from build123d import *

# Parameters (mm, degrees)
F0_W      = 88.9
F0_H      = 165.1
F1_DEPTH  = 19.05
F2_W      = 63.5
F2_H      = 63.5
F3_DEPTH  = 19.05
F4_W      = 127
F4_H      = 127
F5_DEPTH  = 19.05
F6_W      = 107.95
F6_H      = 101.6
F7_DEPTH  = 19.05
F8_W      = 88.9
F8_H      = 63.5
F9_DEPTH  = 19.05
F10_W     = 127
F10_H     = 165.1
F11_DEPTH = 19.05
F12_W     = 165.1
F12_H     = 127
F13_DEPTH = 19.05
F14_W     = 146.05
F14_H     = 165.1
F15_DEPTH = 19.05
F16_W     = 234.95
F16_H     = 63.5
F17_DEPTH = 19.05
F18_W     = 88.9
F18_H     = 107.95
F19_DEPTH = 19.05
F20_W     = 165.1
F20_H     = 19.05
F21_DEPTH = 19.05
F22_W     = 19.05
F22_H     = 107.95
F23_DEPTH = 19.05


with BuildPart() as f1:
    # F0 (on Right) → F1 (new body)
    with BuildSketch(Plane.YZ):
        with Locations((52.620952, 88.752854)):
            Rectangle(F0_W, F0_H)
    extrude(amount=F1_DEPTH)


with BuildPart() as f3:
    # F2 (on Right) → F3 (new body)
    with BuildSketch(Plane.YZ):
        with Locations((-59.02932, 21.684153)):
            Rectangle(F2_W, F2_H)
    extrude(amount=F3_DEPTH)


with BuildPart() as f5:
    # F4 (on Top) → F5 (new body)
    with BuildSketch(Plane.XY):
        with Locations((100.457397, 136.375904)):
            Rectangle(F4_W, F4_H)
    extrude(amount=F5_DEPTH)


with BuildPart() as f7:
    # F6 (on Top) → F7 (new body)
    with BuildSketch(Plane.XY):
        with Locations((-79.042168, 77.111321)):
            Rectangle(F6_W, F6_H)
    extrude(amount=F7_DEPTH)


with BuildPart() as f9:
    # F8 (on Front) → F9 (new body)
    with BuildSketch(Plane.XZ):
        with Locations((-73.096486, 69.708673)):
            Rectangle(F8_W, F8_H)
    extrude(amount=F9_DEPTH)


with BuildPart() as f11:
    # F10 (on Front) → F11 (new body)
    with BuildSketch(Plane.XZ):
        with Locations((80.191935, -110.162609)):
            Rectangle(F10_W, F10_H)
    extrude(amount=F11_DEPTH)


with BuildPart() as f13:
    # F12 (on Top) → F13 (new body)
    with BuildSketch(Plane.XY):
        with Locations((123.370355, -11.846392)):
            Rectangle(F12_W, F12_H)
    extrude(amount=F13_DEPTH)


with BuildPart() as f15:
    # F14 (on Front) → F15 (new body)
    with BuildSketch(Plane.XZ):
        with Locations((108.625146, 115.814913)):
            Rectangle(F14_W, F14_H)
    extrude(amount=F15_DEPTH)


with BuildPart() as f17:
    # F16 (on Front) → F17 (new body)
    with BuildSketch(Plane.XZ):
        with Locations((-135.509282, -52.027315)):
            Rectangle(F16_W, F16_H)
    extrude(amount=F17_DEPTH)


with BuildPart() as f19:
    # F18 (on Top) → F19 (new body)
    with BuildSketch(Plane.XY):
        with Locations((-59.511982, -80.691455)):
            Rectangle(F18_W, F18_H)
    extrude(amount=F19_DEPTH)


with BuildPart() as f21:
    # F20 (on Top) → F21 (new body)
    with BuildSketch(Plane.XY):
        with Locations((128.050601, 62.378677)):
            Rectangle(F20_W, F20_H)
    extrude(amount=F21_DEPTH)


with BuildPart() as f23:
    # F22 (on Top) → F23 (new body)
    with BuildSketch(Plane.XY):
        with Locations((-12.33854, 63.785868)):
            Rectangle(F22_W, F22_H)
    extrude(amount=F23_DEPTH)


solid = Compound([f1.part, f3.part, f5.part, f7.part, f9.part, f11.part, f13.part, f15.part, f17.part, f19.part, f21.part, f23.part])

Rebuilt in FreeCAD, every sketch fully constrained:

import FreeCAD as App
import Part
import Sketcher
Q = App.Units.Quantity

doc = App.newDocument("Part")
body = doc.addObject("PartDesign::Body", "Body")

sketch1 = body.newObject("Sketcher::SketchObject", "Sketch")
sketch1.AttachmentSupport = (doc.getObject("YZ_Plane"), [""])
sketch1.MapMode = "FlatFace"
sketch1.addGeometry(Part.LineSegment(App.Vector(8.170952, 171.302854, 0), App.Vector(8.170952, 6.202854, 0)), False)
sketch1.addGeometry(Part.LineSegment(App.Vector(8.170952, 6.202854, 0), App.Vector(97.070952, 6.202854, 0)), False)
sketch1.addGeometry(Part.LineSegment(App.Vector(97.070952, 6.202854, 0), App.Vector(97.070952, 171.302854, 0)), False)
sketch1.addGeometry(Part.LineSegment(App.Vector(97.070952, 171.302854, 0), App.Vector(8.170952, 171.302854, 0)), False)
sketch1.addConstraint(Sketcher.Constraint("Coincident", 0, 2, 1, 1))
sketch1.addConstraint(Sketcher.Constraint("Coincident", 1, 2, 2, 1))
sketch1.addConstraint(Sketcher.Constraint("Coincident", 2, 2, 3, 1))
sketch1.addConstraint(Sketcher.Constraint("Coincident", 3, 2, 0, 1))
sketch1.addConstraint(Sketcher.Constraint("Vertical", 0))
sketch1.addConstraint(Sketcher.Constraint("Horizontal", 1))
sketch1.addConstraint(Sketcher.Constraint("Vertical", 2))
sketch1.addConstraint(Sketcher.Constraint("Horizontal", 3))
sketch1.addConstraint(Sketcher.Constraint("DistanceX", 1, 1, 1, 2, Q("3.5 in")))
sketch1.addConstraint(Sketcher.Constraint("DistanceY", 0, 2, 0, 1, Q("6.5 in")))
sketch1.addConstraint(Sketcher.Constraint("DistanceX", -1, 1, 0, 2, Q("8.170952 mm")))
sketch1.addConstraint(Sketcher.Constraint("DistanceY", -1, 1, 0, 2, Q("6.202854 mm")))
pad1 = body.newObject("PartDesign::Pad", "Pad")
pad1.Profile = sketch1
pad1.Length = Q("0.75 in")
body2 = doc.addObject("PartDesign::Body", "Body001")

sketch2 = body2.newObject("Sketcher::SketchObject", "Sketch001")
sketch2.AttachmentSupport = (doc.getObject("YZ_Plane001"), [""])
sketch2.MapMode = "FlatFace"
sketch2.addGeometry(Part.LineSegment(App.Vector(-90.77932, 53.434153, 0), App.Vector(-90.77932, -10.065847, 0)), False)
sketch2.addGeometry(Part.LineSegment(App.Vector(-90.77932, -10.065847, 0), App.Vector(-27.27932, -10.065847, 0)), False)
sketch2.addGeometry(Part.LineSegment(App.Vector(-27.27932, -10.065847, 0), App.Vector(-27.27932, 53.434153, 0)), False)
sketch2.addGeometry(Part.LineSegment(App.Vector(-27.27932, 53.434153, 0), App.Vector(-90.77932, 53.434153, 0)), False)
sketch2.addConstraint(Sketcher.Constraint("Coincident", 0, 2, 1, 1))
sketch2.addConstraint(Sketcher.Constraint("Coincident", 1, 2, 2, 1))
sketch2.addConstraint(Sketcher.Constraint("Coincident", 2, 2, 3, 1))
sketch2.addConstraint(Sketcher.Constraint("Coincident", 3, 2, 0, 1))
sketch2.addConstraint(Sketcher.Constraint("Vertical", 0))
sketch2.addConstraint(Sketcher.Constraint("Horizontal", 1))
sketch2.addConstraint(Sketcher.Constraint("Vertical", 2))
sketch2.addConstraint(Sketcher.Constraint("Horizontal", 3))
sketch2.addConstraint(Sketcher.Constraint("Equal", 3, 0))
sketch2.addConstraint(Sketcher.Constraint("DistanceX", 1, 1, 1, 2, Q("2.5 in")))
sketch2.addConstraint(Sketcher.Constraint("DistanceX", 0, 2, -1, 1, Q("90.77932 mm")))
sketch2.addConstraint(Sketcher.Constraint("DistanceY", 0, 2, -1, 1, Q("10.065847 mm")))
pad2 = body2.newObject("PartDesign::Pad", "Pad001")
pad2.Profile = sketch2
pad2.Length = Q("0.75 in")
body3 = doc.addObject("PartDesign::Body", "Body002")

sketch3 = body3.newObject("Sketcher::SketchObject", "Sketch002")
sketch3.AttachmentSupport = (doc.getObject("XY_Plane002"), [""])
sketch3.MapMode = "FlatFace"
sketch3.addGeometry(Part.LineSegment(App.Vector(36.957397, 199.875904, 0), App.Vector(36.957397, 72.875904, 0)), False)
sketch3.addGeometry(Part.LineSegment(App.Vector(36.957397, 72.875904, 0), App.Vector(163.957397, 72.875904, 0)), False)
sketch3.addGeometry(Part.LineSegment(App.Vector(163.957397, 72.875904, 0), App.Vector(163.957397, 199.875904, 0)), False)
sketch3.addGeometry(Part.LineSegment(App.Vector(163.957397, 199.875904, 0), App.Vector(36.957397, 199.875904, 0)), False)
sketch3.addConstraint(Sketcher.Constraint("Coincident", 0, 2, 1, 1))
sketch3.addConstraint(Sketcher.Constraint("Coincident", 1, 2, 2, 1))
sketch3.addConstraint(Sketcher.Constraint("Coincident", 2, 2, 3, 1))
sketch3.addConstraint(Sketcher.Constraint("Coincident", 3, 2, 0, 1))
sketch3.addConstraint(Sketcher.Constraint("Vertical", 0))
sketch3.addConstraint(Sketcher.Constraint("Horizontal", 1))
sketch3.addConstraint(Sketcher.Constraint("Vertical", 2))
sketch3.addConstraint(Sketcher.Constraint("Horizontal", 3))
sketch3.addConstraint(Sketcher.Constraint("Equal", 3, 0))
sketch3.addConstraint(Sketcher.Constraint("DistanceX", 1, 1, 1, 2, Q("5 in")))
sketch3.addConstraint(Sketcher.Constraint("DistanceX", -1, 1, 0, 2, Q("36.957397 mm")))
sketch3.addConstraint(Sketcher.Constraint("DistanceY", -1, 1, 0, 2, Q("72.875904 mm")))
pad3 = body3.newObject("PartDesign::Pad", "Pad002")
pad3.Profile = sketch3
pad3.Length = Q("0.75 in")
body4 = doc.addObject("PartDesign::Body", "Body003")

sketch4 = body4.newObject("Sketcher::SketchObject", "Sketch003")
sketch4.AttachmentSupport = (doc.getObject("XY_Plane003"), [""])
sketch4.MapMode = "FlatFace"
sketch4.addGeometry(Part.LineSegment(App.Vector(-133.017168, 127.911321, 0), App.Vector(-133.017168, 26.311321, 0)), False)
sketch4.addGeometry(Part.LineSegment(App.Vector(-133.017168, 26.311321, 0), App.Vector(-25.067168, 26.311321, 0)), False)
sketch4.addGeometry(Part.LineSegment(App.Vector(-25.067168, 26.311321, 0), App.Vector(-25.067168, 127.911321, 0)), False)
sketch4.addGeometry(Part.LineSegment(App.Vector(-25.067168, 127.911321, 0), App.Vector(-133.017168, 127.911321, 0)), False)
sketch4.addConstraint(Sketcher.Constraint("Coincident", 0, 2, 1, 1))
sketch4.addConstraint(Sketcher.Constraint("Coincident", 1, 2, 2, 1))
sketch4.addConstraint(Sketcher.Constraint("Coincident", 2, 2, 3, 1))
sketch4.addConstraint(Sketcher.Constraint("Coincident", 3, 2, 0, 1))
sketch4.addConstraint(Sketcher.Constraint("Vertical", 0))
sketch4.addConstraint(Sketcher.Constraint("Horizontal", 1))
sketch4.addConstraint(Sketcher.Constraint("Vertical", 2))
sketch4.addConstraint(Sketcher.Constraint("Horizontal", 3))
sketch4.addConstraint(Sketcher.Constraint("DistanceY", 0, 2, 0, 1, Q("4 in")))
sketch4.addConstraint(Sketcher.Constraint("DistanceX", 1, 1, 1, 2, Q("4.25 in")))
sketch4.addConstraint(Sketcher.Constraint("DistanceX", 0, 2, -1, 1, Q("133.017168 mm")))
sketch4.addConstraint(Sketcher.Constraint("DistanceY", -1, 1, 0, 2, Q("26.311321 mm")))
pad4 = body4.newObject("PartDesign::Pad", "Pad003")
pad4.Profile = sketch4
pad4.Length = Q("0.75 in")
body5 = doc.addObject("PartDesign::Body", "Body004")

sketch5 = body5.newObject("Sketcher::SketchObject", "Sketch004")
sketch5.AttachmentSupport = (doc.getObject("XZ_Plane004"), [""])
sketch5.MapMode = "FlatFace"
sketch5.addGeometry(Part.LineSegment(App.Vector(-117.546486, 101.458673, 0), App.Vector(-117.546486, 37.958673, 0)), False)
sketch5.addGeometry(Part.LineSegment(App.Vector(-117.546486, 37.958673, 0), App.Vector(-28.646486, 37.958673, 0)), False)
sketch5.addGeometry(Part.LineSegment(App.Vector(-28.646486, 37.958673, 0), App.Vector(-28.646486, 101.458673, 0)), False)
sketch5.addGeometry(Part.LineSegment(App.Vector(-28.646486, 101.458673, 0), App.Vector(-117.546486, 101.458673, 0)), False)
sketch5.addConstraint(Sketcher.Constraint("Coincident", 0, 2, 1, 1))
sketch5.addConstraint(Sketcher.Constraint("Coincident", 1, 2, 2, 1))
sketch5.addConstraint(Sketcher.Constraint("Coincident", 2, 2, 3, 1))
sketch5.addConstraint(Sketcher.Constraint("Coincident", 3, 2, 0, 1))
sketch5.addConstraint(Sketcher.Constraint("Vertical", 0))
sketch5.addConstraint(Sketcher.Constraint("Horizontal", 1))
sketch5.addConstraint(Sketcher.Constraint("Vertical", 2))
sketch5.addConstraint(Sketcher.Constraint("Horizontal", 3))
sketch5.addConstraint(Sketcher.Constraint("DistanceX", 1, 1, 1, 2, Q("3.5 in")))
sketch5.addConstraint(Sketcher.Constraint("DistanceY", 0, 2, 0, 1, Q("2.5 in")))
sketch5.addConstraint(Sketcher.Constraint("DistanceX", 0, 2, -1, 1, Q("117.546486 mm")))
sketch5.addConstraint(Sketcher.Constraint("DistanceY", -1, 1, 0, 2, Q("37.958673 mm")))
pad5 = body5.newObject("PartDesign::Pad", "Pad004")
pad5.Profile = sketch5
pad5.Length = Q("0.75 in")
body6 = doc.addObject("PartDesign::Body", "Body005")

sketch6 = body6.newObject("Sketcher::SketchObject", "Sketch005")
sketch6.AttachmentSupport = (doc.getObject("XZ_Plane005"), [""])
sketch6.MapMode = "FlatFace"
sketch6.addGeometry(Part.LineSegment(App.Vector(16.691935, -27.612609, 0), App.Vector(16.691935, -192.712609, 0)), False)
sketch6.addGeometry(Part.LineSegment(App.Vector(16.691935, -192.712609, 0), App.Vector(143.691935, -192.712609, 0)), False)
sketch6.addGeometry(Part.LineSegment(App.Vector(143.691935, -192.712609, 0), App.Vector(143.691935, -27.612609, 0)), False)
sketch6.addGeometry(Part.LineSegment(App.Vector(143.691935, -27.612609, 0), App.Vector(16.691935, -27.612609, 0)), False)
sketch6.addConstraint(Sketcher.Constraint("Coincident", 0, 2, 1, 1))
sketch6.addConstraint(Sketcher.Constraint("Coincident", 1, 2, 2, 1))
sketch6.addConstraint(Sketcher.Constraint("Coincident", 2, 2, 3, 1))
sketch6.addConstraint(Sketcher.Constraint("Coincident", 3, 2, 0, 1))
sketch6.addConstraint(Sketcher.Constraint("Vertical", 0))
sketch6.addConstraint(Sketcher.Constraint("Horizontal", 1))
sketch6.addConstraint(Sketcher.Constraint("Vertical", 2))
sketch6.addConstraint(Sketcher.Constraint("Horizontal", 3))
sketch6.addConstraint(Sketcher.Constraint("DistanceX", 1, 1, 1, 2, Q("5 in")))
sketch6.addConstraint(Sketcher.Constraint("DistanceY", 0, 2, 0, 1, Q("6.5 in")))
sketch6.addConstraint(Sketcher.Constraint("DistanceY", 0, 2, -1, 1, Q("192.712609 mm")))
sketch6.addConstraint(Sketcher.Constraint("DistanceX", -1, 1, 0, 2, Q("16.691935 mm")))
pad6 = body6.newObject("PartDesign::Pad", "Pad005")
pad6.Profile = sketch6
pad6.Length = Q("0.75 in")
body7 = doc.addObject("PartDesign::Body", "Body006")

sketch7 = body7.newObject("Sketcher::SketchObject", "Sketch006")
sketch7.AttachmentSupport = (doc.getObject("XY_Plane006"), [""])
sketch7.MapMode = "FlatFace"
sketch7.addGeometry(Part.LineSegment(App.Vector(40.820355, 51.653608, 0), App.Vector(40.820355, -75.346392, 0)), False)
sketch7.addGeometry(Part.LineSegment(App.Vector(40.820355, -75.346392, 0), App.Vector(205.920355, -75.346392, 0)), False)
sketch7.addGeometry(Part.LineSegment(App.Vector(205.920355, -75.346392, 0), App.Vector(205.920355, 51.653608, 0)), False)
sketch7.addGeometry(Part.LineSegment(App.Vector(205.920355, 51.653608, 0), App.Vector(40.820355, 51.653608, 0)), False)
sketch7.addConstraint(Sketcher.Constraint("Coincident", 0, 2, 1, 1))
sketch7.addConstraint(Sketcher.Constraint("Coincident", 1, 2, 2, 1))
sketch7.addConstraint(Sketcher.Constraint("Coincident", 2, 2, 3, 1))
sketch7.addConstraint(Sketcher.Constraint("Coincident", 3, 2, 0, 1))
sketch7.addConstraint(Sketcher.Constraint("Vertical", 0))
sketch7.addConstraint(Sketcher.Constraint("Horizontal", 1))
sketch7.addConstraint(Sketcher.Constraint("Vertical", 2))
sketch7.addConstraint(Sketcher.Constraint("Horizontal", 3))
sketch7.addConstraint(Sketcher.Constraint("DistanceY", 0, 2, 0, 1, Q("5 in")))
sketch7.addConstraint(Sketcher.Constraint("DistanceX", 1, 1, 1, 2, Q("6.5 in")))
sketch7.addConstraint(Sketcher.Constraint("DistanceY", 0, 2, -1, 1, Q("75.346392 mm")))
sketch7.addConstraint(Sketcher.Constraint("DistanceX", -1, 1, 0, 2, Q("40.820355 mm")))
pad7 = body7.newObject("PartDesign::Pad", "Pad006")
pad7.Profile = sketch7
pad7.Length = Q("0.75 in")
body8 = doc.addObject("PartDesign::Body", "Body007")

sketch8 = body8.newObject("Sketcher::SketchObject", "Sketch007")
sketch8.AttachmentSupport = (doc.getObject("XZ_Plane007"), [""])
sketch8.MapMode = "FlatFace"
sketch8.addGeometry(Part.LineSegment(App.Vector(35.600146, 198.364913, 0), App.Vector(35.600146, 33.264913, 0)), False)
sketch8.addGeometry(Part.LineSegment(App.Vector(35.600146, 33.264913, 0), App.Vector(181.650146, 33.264913, 0)), False)
sketch8.addGeometry(Part.LineSegment(App.Vector(181.650146, 33.264913, 0), App.Vector(181.650146, 198.364913, 0)), False)
sketch8.addGeometry(Part.LineSegment(App.Vector(181.650146, 198.364913, 0), App.Vector(35.600146, 198.364913, 0)), False)
sketch8.addConstraint(Sketcher.Constraint("Coincident", 0, 2, 1, 1))
sketch8.addConstraint(Sketcher.Constraint("Coincident", 1, 2, 2, 1))
sketch8.addConstraint(Sketcher.Constraint("Coincident", 2, 2, 3, 1))
sketch8.addConstraint(Sketcher.Constraint("Coincident", 3, 2, 0, 1))
sketch8.addConstraint(Sketcher.Constraint("Vertical", 0))
sketch8.addConstraint(Sketcher.Constraint("Horizontal", 1))
sketch8.addConstraint(Sketcher.Constraint("Vertical", 2))
sketch8.addConstraint(Sketcher.Constraint("Horizontal", 3))
sketch8.addConstraint(Sketcher.Constraint("DistanceY", 0, 2, 0, 1, Q("6.5 in")))
sketch8.addConstraint(Sketcher.Constraint("DistanceX", 1, 1, 1, 2, Q("5.75 in")))
sketch8.addConstraint(Sketcher.Constraint("DistanceX", -1, 1, 0, 2, Q("35.600146 mm")))
sketch8.addConstraint(Sketcher.Constraint("DistanceY", -1, 1, 0, 2, Q("33.264913 mm")))
pad8 = body8.newObject("PartDesign::Pad", "Pad007")
pad8.Profile = sketch8
pad8.Length = Q("0.75 in")
body9 = doc.addObject("PartDesign::Body", "Body008")

sketch9 = body9.newObject("Sketcher::SketchObject", "Sketch008")
sketch9.AttachmentSupport = (doc.getObject("XZ_Plane008"), [""])
sketch9.MapMode = "FlatFace"
sketch9.addGeometry(Part.LineSegment(App.Vector(-252.984282, -20.277315, 0), App.Vector(-252.984282, -83.777315, 0)), False)
sketch9.addGeometry(Part.LineSegment(App.Vector(-252.984282, -83.777315, 0), App.Vector(-18.034282, -83.777315, 0)), False)
sketch9.addGeometry(Part.LineSegment(App.Vector(-18.034282, -83.777315, 0), App.Vector(-18.034282, -20.277315, 0)), False)
sketch9.addGeometry(Part.LineSegment(App.Vector(-18.034282, -20.277315, 0), App.Vector(-252.984282, -20.277315, 0)), False)
sketch9.addConstraint(Sketcher.Constraint("Coincident", 0, 2, 1, 1))
sketch9.addConstraint(Sketcher.Constraint("Coincident", 1, 2, 2, 1))
sketch9.addConstraint(Sketcher.Constraint("Coincident", 2, 2, 3, 1))
sketch9.addConstraint(Sketcher.Constraint("Coincident", 3, 2, 0, 1))
sketch9.addConstraint(Sketcher.Constraint("Vertical", 0))
sketch9.addConstraint(Sketcher.Constraint("Horizontal", 1))
sketch9.addConstraint(Sketcher.Constraint("Vertical", 2))
sketch9.addConstraint(Sketcher.Constraint("Horizontal", 3))
sketch9.addConstraint(Sketcher.Constraint("DistanceY", 0, 2, 0, 1, Q("2.5 in")))
sketch9.addConstraint(Sketcher.Constraint("DistanceX", 1, 1, 1, 2, Q("9.25 in")))
sketch9.addConstraint(Sketcher.Constraint("DistanceX", 0, 2, -1, 1, Q("252.984282 mm")))
sketch9.addConstraint(Sketcher.Constraint("DistanceY", 0, 2, -1, 1, Q("83.777315 mm")))
pad9 = body9.newObject("PartDesign::Pad", "Pad008")
pad9.Profile = sketch9
pad9.Length = Q("0.75 in")
body10 = doc.addObject("PartDesign::Body", "Body009")

sketch10 = body10.newObject("Sketcher::SketchObject", "Sketch009")
sketch10.AttachmentSupport = (doc.getObject("XY_Plane009"), [""])
sketch10.MapMode = "FlatFace"
sketch10.addGeometry(Part.LineSegment(App.Vector(-103.961982, -26.716455, 0), App.Vector(-103.961982, -134.666455, 0)), False)
sketch10.addGeometry(Part.LineSegment(App.Vector(-103.961982, -134.666455, 0), App.Vector(-15.061982, -134.666455, 0)), False)
sketch10.addGeometry(Part.LineSegment(App.Vector(-15.061982, -134.666455, 0), App.Vector(-15.061982, -26.716455, 0)), False)
sketch10.addGeometry(Part.LineSegment(App.Vector(-15.061982, -26.716455, 0), App.Vector(-103.961982, -26.716455, 0)), False)
sketch10.addConstraint(Sketcher.Constraint("Coincident", 0, 2, 1, 1))
sketch10.addConstraint(Sketcher.Constraint("Coincident", 1, 2, 2, 1))
sketch10.addConstraint(Sketcher.Constraint("Coincident", 2, 2, 3, 1))
sketch10.addConstraint(Sketcher.Constraint("Coincident", 3, 2, 0, 1))
sketch10.addConstraint(Sketcher.Constraint("Vertical", 0))
sketch10.addConstraint(Sketcher.Constraint("Horizontal", 1))
sketch10.addConstraint(Sketcher.Constraint("Vertical", 2))
sketch10.addConstraint(Sketcher.Constraint("Horizontal", 3))
sketch10.addConstraint(Sketcher.Constraint("DistanceX", 1, 1, 1, 2, Q("3.5 in")))
sketch10.addConstraint(Sketcher.Constraint("DistanceY", 0, 2, 0, 1, Q("4.25 in")))
sketch10.addConstraint(Sketcher.Constraint("DistanceX", 0, 2, -1, 1, Q("103.961982 mm")))
sketch10.addConstraint(Sketcher.Constraint("DistanceY", 0, 2, -1, 1, Q("134.666455 mm")))
pad10 = body10.newObject("PartDesign::Pad", "Pad009")
pad10.Profile = sketch10
pad10.Length = Q("0.75 in")
body11 = doc.addObject("PartDesign::Body", "Body010")

sketch11 = body11.newObject("Sketcher::SketchObject", "Sketch010")
sketch11.AttachmentSupport = (doc.getObject("XY_Plane010"), [""])
sketch11.MapMode = "FlatFace"
sketch11.addGeometry(Part.LineSegment(App.Vector(45.500601, 71.903677, 0), App.Vector(45.500601, 52.853677, 0)), False)
sketch11.addGeometry(Part.LineSegment(App.Vector(45.500601, 52.853677, 0), App.Vector(210.600601, 52.853677, 0)), False)
sketch11.addGeometry(Part.LineSegment(App.Vector(210.600601, 52.853677, 0), App.Vector(210.600601, 71.903677, 0)), False)
sketch11.addGeometry(Part.LineSegment(App.Vector(210.600601, 71.903677, 0), App.Vector(45.500601, 71.903677, 0)), False)
sketch11.addConstraint(Sketcher.Constraint("Coincident", 0, 2, 1, 1))
sketch11.addConstraint(Sketcher.Constraint("Coincident", 1, 2, 2, 1))
sketch11.addConstraint(Sketcher.Constraint("Coincident", 2, 2, 3, 1))
sketch11.addConstraint(Sketcher.Constraint("Coincident", 3, 2, 0, 1))
sketch11.addConstraint(Sketcher.Constraint("Vertical", 0))
sketch11.addConstraint(Sketcher.Constraint("Horizontal", 1))
sketch11.addConstraint(Sketcher.Constraint("Vertical", 2))
sketch11.addConstraint(Sketcher.Constraint("Horizontal", 3))
sketch11.addConstraint(Sketcher.Constraint("DistanceX", 1, 1, 1, 2, Q("6.5 in")))
sketch11.addConstraint(Sketcher.Constraint("DistanceY", 0, 2, 0, 1, Q("0.75 in")))
sketch11.addConstraint(Sketcher.Constraint("DistanceX", -1, 1, 0, 2, Q("45.500601 mm")))
sketch11.addConstraint(Sketcher.Constraint("DistanceY", -1, 1, 0, 2, Q("52.853677 mm")))
pad11 = body11.newObject("PartDesign::Pad", "Pad010")
pad11.Profile = sketch11
pad11.Length = Q("0.75 in")
body12 = doc.addObject("PartDesign::Body", "Body011")

sketch12 = body12.newObject("Sketcher::SketchObject", "Sketch011")
sketch12.AttachmentSupport = (doc.getObject("XY_Plane011"), [""])
sketch12.MapMode = "FlatFace"
sketch12.addGeometry(Part.LineSegment(App.Vector(-21.86354, 117.760868, 0), App.Vector(-21.86354, 9.810868, 0)), False)
sketch12.addGeometry(Part.LineSegment(App.Vector(-21.86354, 9.810868, 0), App.Vector(-2.81354, 9.810868, 0)), False)
sketch12.addGeometry(Part.LineSegment(App.Vector(-2.81354, 9.810868, 0), App.Vector(-2.81354, 117.760868, 0)), False)
sketch12.addGeometry(Part.LineSegment(App.Vector(-2.81354, 117.760868, 0), App.Vector(-21.86354, 117.760868, 0)), False)
sketch12.addConstraint(Sketcher.Constraint("Coincident", 0, 2, 1, 1))
sketch12.addConstraint(Sketcher.Constraint("Coincident", 1, 2, 2, 1))
sketch12.addConstraint(Sketcher.Constraint("Coincident", 2, 2, 3, 1))
sketch12.addConstraint(Sketcher.Constraint("Coincident", 3, 2, 0, 1))
sketch12.addConstraint(Sketcher.Constraint("Vertical", 0))
sketch12.addConstraint(Sketcher.Constraint("Horizontal", 1))
sketch12.addConstraint(Sketcher.Constraint("Vertical", 2))
sketch12.addConstraint(Sketcher.Constraint("Horizontal", 3))
sketch12.addConstraint(Sketcher.Constraint("DistanceX", 1, 1, 1, 2, Q("0.75 in")))
sketch12.addConstraint(Sketcher.Constraint("DistanceY", 0, 2, 0, 1, Q("4.25 in")))
sketch12.addConstraint(Sketcher.Constraint("DistanceX", 0, 2, -1, 1, Q("21.86354 mm")))
sketch12.addConstraint(Sketcher.Constraint("DistanceY", -1, 1, 2, 2, Q("117.760868 mm")))
pad12 = body12.newObject("PartDesign::Pad", "Pad011")
pad12.Profile = sketch12
pad12.Length = Q("0.75 in")

doc.recompute()
